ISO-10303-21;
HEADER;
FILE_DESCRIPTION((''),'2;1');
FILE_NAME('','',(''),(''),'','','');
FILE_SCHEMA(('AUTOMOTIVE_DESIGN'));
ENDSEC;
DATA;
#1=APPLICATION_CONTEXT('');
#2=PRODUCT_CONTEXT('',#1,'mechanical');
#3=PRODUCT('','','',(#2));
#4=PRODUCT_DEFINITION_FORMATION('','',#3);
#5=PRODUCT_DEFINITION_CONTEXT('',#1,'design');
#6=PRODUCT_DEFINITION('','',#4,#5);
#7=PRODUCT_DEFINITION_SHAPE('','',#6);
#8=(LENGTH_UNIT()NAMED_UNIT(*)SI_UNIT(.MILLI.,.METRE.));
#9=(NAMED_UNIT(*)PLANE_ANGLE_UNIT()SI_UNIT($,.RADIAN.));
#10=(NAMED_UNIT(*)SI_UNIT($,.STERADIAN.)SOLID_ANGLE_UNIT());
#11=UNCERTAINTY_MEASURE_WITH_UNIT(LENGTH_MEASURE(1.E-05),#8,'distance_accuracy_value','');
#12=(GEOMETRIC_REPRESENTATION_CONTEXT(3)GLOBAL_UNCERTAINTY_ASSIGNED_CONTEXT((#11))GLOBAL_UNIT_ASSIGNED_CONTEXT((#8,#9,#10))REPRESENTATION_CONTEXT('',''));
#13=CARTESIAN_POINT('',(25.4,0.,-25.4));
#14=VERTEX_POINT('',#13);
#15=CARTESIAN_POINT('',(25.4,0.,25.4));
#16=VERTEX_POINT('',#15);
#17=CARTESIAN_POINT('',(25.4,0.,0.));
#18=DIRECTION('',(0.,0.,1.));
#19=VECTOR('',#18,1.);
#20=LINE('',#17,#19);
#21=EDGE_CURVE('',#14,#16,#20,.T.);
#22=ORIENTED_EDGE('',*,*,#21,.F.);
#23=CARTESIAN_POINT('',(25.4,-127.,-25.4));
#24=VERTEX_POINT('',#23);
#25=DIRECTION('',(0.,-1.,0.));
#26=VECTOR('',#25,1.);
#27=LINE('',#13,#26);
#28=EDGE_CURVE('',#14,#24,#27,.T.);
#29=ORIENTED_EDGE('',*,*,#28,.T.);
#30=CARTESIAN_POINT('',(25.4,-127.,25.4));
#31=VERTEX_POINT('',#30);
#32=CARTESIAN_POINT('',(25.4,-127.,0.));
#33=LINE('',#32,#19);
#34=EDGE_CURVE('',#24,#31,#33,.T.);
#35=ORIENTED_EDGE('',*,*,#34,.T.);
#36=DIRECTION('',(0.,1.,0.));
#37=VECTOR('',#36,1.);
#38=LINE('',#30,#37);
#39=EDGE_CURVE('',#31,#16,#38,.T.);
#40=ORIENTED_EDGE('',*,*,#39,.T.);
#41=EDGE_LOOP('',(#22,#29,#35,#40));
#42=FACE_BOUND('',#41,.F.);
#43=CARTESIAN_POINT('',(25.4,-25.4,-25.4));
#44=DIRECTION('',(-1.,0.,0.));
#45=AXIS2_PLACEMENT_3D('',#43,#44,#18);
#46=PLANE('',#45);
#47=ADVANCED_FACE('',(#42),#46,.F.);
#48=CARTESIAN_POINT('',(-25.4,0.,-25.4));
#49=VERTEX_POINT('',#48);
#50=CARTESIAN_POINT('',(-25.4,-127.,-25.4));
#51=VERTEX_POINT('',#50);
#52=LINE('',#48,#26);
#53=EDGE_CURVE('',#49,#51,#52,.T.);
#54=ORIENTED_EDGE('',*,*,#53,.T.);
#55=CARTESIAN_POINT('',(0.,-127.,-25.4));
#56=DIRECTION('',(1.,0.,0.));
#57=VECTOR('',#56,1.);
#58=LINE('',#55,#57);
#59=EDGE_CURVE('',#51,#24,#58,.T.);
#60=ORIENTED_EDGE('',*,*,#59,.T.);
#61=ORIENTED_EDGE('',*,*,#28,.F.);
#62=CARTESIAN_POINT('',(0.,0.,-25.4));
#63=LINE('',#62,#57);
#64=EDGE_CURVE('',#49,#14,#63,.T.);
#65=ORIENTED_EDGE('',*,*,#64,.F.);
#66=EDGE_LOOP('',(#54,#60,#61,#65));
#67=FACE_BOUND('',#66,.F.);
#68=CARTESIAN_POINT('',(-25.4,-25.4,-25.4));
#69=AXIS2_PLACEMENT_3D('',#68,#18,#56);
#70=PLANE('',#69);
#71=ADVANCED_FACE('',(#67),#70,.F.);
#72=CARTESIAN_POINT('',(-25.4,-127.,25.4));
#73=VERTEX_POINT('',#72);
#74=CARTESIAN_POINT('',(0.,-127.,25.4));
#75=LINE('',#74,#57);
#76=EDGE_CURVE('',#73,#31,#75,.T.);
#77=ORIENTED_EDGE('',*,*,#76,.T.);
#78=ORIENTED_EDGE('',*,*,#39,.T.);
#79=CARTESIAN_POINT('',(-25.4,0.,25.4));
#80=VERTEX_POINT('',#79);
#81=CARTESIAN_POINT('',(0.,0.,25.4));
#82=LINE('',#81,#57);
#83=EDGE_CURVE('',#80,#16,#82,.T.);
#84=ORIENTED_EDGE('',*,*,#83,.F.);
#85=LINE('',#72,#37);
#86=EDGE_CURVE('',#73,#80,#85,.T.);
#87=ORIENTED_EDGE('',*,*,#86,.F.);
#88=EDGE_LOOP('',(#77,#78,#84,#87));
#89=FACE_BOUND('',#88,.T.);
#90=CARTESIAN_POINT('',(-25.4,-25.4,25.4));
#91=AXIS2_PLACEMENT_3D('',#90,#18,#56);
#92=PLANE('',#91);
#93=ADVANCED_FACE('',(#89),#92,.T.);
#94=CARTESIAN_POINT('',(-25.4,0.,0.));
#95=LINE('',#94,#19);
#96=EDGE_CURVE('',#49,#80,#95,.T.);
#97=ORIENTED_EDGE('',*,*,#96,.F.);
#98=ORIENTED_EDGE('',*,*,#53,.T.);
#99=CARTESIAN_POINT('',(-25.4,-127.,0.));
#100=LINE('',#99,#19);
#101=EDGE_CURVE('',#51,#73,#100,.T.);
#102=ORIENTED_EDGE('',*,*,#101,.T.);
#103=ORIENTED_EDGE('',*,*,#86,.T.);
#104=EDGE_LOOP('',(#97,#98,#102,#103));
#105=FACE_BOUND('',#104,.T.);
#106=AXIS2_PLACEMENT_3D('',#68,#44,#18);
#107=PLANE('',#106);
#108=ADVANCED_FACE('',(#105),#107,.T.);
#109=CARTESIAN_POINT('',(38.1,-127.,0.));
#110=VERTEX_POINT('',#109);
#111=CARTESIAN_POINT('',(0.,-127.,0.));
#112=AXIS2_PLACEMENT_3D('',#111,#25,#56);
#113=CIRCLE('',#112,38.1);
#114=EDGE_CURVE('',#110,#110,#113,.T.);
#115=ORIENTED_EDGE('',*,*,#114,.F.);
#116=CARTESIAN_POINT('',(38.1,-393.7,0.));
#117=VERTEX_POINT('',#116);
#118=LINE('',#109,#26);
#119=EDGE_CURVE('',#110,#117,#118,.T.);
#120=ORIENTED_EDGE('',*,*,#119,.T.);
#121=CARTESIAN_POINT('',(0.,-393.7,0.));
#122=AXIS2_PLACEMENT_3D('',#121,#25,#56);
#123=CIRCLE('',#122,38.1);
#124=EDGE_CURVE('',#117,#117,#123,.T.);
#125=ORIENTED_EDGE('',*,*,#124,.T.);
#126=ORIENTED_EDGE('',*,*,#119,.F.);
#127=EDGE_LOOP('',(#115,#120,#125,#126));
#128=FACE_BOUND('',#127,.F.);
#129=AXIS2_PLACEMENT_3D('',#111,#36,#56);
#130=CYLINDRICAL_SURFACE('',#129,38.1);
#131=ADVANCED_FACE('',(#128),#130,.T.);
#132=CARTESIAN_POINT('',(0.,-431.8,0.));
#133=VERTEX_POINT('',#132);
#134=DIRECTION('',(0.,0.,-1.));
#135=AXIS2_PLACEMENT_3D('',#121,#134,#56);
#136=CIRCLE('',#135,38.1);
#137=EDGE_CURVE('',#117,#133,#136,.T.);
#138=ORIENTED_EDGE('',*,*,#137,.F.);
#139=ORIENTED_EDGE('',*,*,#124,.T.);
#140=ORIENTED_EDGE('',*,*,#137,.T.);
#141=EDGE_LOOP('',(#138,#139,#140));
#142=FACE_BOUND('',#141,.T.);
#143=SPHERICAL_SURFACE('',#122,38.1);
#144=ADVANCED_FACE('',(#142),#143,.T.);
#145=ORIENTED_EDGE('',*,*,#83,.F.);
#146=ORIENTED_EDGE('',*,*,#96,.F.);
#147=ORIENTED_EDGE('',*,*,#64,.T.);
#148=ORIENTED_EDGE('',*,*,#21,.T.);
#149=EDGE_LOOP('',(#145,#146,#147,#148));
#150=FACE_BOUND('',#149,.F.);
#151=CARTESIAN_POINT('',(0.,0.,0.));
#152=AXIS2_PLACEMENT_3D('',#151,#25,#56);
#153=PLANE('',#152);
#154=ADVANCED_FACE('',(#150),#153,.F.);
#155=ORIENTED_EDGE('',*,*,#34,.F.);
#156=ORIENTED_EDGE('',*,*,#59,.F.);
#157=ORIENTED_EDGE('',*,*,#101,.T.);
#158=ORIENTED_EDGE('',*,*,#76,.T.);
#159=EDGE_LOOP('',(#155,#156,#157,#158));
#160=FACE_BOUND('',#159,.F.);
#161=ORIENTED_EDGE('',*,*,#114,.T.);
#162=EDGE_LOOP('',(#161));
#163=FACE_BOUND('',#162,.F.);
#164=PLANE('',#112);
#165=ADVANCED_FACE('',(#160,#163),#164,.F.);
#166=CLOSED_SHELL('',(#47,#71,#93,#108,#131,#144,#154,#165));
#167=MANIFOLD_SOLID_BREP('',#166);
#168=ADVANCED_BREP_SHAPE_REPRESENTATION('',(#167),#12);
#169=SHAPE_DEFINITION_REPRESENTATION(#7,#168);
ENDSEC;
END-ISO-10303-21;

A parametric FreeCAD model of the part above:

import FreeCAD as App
import Part
import Sketcher
from FreeCAD import Vector
Q = App.Units.Quantity


def edges_at(feature, points):
    """Names of the edges that pass closest to the given points."""
    edges = feature.Shape.Edges
    near = lambda p: min(range(len(edges)), key=lambda i: edges[i].distToShape(Part.Vertex(*p))[0])
    return sorted({f"Edge{near(p) + 1}" for p in points})

doc = App.newDocument("Part")
body = doc.addObject("PartDesign::Body", "Body")

# Sketch on XZ plane
sketch1 = body.newObject("Sketcher::SketchObject", "Sketch")
sketch1.AttachmentSupport = (doc.getObject("XZ_Plane"), [""])
sketch1.MapMode = "FlatFace"
sketch1.addGeometry([
    Part.LineSegment(Vector(-25, 25, 0), Vector(-25, -25, 0)),
    Part.LineSegment(Vector(-25, -25, 0), Vector(25, -25, 0)),
    Part.LineSegment(Vector(25, -25, 0), Vector(25, 25, 0)),
    Part.LineSegment(Vector(25, 25, 0), Vector(-25, 25, 0)),
], False)
sketch1.addConstraint([
    Sketcher.Constraint("Coincident", 0, 2, 1, 1),
    Sketcher.Constraint("Coincident", 1, 2, 2, 1),
    Sketcher.Constraint("Coincident", 2, 2, 3, 1),
    Sketcher.Constraint("Coincident", 3, 2, 0, 1),
    Sketcher.Constraint("Vertical", 0),
    Sketcher.Constraint("Horizontal", 1),
    Sketcher.Constraint("Vertical", 2),
    Sketcher.Constraint("Horizontal", 3),
    Sketcher.Constraint("Symmetric", 0, 2, 2, 2, -1, 1),
    Sketcher.Constraint("Equal", 3, 0),
    Sketcher.Constraint("DistanceX", 1, 1, 1, 2, Q("2 in")),
])
pad1 = body.newObject("PartDesign::Pad", "Pad")
pad1.Profile = sketch1
pad1.Length = Q("1 in")

# Sketch on XZ plane
sketch2 = body.newObject("Sketcher::SketchObject", "Sketch001")
sketch2.AttachmentSupport = (doc.getObject("XZ_Plane"), [""])
sketch2.MapMode = "FlatFace"
sketch2.AttachmentOffset = App.Placement(Vector(0, 0, 1 * 25.4), App.Rotation())
sketch2.addGeometry([
    Part.LineSegment(Vector(-25, 25, 0), Vector(-25, -25, 0)),
    Part.LineSegment(Vector(-25, -25, 0), Vector(25, -25, 0)),
    Part.LineSegment(Vector(25, -25, 0), Vector(25, 25, 0)),
    Part.LineSegment(Vector(25, 25, 0), Vector(-25, 25, 0)),
], False)
sketch2.addConstraint([
    Sketcher.Constraint("Coincident", 0, 2, 1, 1),
    Sketcher.Constraint("Coincident", 1, 2, 2, 1),
    Sketcher.Constraint("Coincident", 2, 2, 3, 1),
    Sketcher.Constraint("Coincident", 3, 2, 0, 1),
    Sketcher.Constraint("Vertical", 0),
    Sketcher.Constraint("Horizontal", 1),
    Sketcher.Constraint("Vertical", 2),
    Sketcher.Constraint("Horizontal", 3),
    Sketcher.Constraint("Symmetric", 0, 2, 2, 2, -1, 1),
    Sketcher.Constraint("Equal", 3, 0),
    Sketcher.Constraint("DistanceX", 1, 1, 1, 2, Q("2 in")),
])
pad2 = body.newObject("PartDesign::Pad", "Pad001")
pad2.Profile = sketch2
pad2.Length = Q("4 in")

# Sketch on XZ plane
sketch3 = body.newObject("Sketcher::SketchObject", "Sketch002")
sketch3.AttachmentSupport = (doc.getObject("XZ_Plane"), [""])
sketch3.MapMode = "FlatFace"
sketch3.AttachmentOffset = App.Placement(Vector(0, 0, 5 * 25.4), App.Rotation())
sketch3.addGeometry(Part.Circle(Vector(0, 0, 0), Vector(0, 0, 1), 38), False)
sketch3.addConstraint([
    Sketcher.Constraint("Coincident", 0, 3, -1, 1),
    Sketcher.Constraint("Diameter", 0, Q("3 in")),
])
pad3 = body.newObject("PartDesign::Pad", "Pad002")
pad3.Profile = sketch3
pad3.Length = Q("12 in")
doc.recompute()

fillet = body.newObject("PartDesign::Fillet", "Fillet")
fillet.Base = (pad3, edges_at(pad3, [(-38.1, -431.8, 0)]))
fillet.Radius = Q("1.5 in")

doc.recompute()
